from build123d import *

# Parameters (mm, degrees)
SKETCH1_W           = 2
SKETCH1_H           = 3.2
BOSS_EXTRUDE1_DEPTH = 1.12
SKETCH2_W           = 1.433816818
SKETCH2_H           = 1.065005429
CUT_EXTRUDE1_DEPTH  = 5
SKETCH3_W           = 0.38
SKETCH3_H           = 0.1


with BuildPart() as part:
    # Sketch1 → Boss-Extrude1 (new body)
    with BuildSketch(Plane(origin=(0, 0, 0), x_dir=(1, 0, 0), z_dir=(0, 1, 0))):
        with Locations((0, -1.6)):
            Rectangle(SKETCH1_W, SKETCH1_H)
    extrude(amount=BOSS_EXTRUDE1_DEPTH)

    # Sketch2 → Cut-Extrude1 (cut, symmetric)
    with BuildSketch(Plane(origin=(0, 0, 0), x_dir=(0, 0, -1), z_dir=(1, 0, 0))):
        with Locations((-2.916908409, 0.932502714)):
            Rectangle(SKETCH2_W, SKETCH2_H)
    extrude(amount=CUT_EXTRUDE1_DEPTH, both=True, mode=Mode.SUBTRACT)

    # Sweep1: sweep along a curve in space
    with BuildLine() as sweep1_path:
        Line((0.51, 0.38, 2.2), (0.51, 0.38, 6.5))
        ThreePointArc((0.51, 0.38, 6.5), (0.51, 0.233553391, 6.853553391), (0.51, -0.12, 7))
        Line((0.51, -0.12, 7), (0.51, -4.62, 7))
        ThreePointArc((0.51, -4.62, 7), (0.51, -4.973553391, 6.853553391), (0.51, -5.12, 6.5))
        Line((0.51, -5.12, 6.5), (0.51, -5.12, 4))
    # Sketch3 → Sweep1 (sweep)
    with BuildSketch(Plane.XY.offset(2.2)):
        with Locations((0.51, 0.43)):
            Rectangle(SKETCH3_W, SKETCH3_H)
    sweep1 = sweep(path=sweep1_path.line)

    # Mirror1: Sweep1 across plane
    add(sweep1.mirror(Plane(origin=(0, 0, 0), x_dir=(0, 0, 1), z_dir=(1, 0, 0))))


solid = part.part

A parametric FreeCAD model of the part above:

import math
import FreeCAD as App
import Part
import Sketcher
Q = App.Units.Quantity

doc = App.newDocument("Part")
body = doc.addObject("PartDesign::Body", "Body")

# Sketch on XZ plane
sketch1 = body.newObject("Sketcher::SketchObject", "Sketch")
sketch1.AttachmentSupport = (doc.getObject("XZ_Plane"), [""])
sketch1.MapMode = "FlatFace"
sketch1.addGeometry(Part.LineSegment(App.Vector(-1, 0, 0), App.Vector(-1, 3.2, 0)), False)
sketch1.addGeometry(Part.LineSegment(App.Vector(-1, 3.2, 0), App.Vector(1, 3.2, 0)), False)
sketch1.addGeometry(Part.LineSegment(App.Vector(1, 3.2, 0), App.Vector(1, 0, 0)), False)
sketch1.addGeometry(Part.LineSegment(App.Vector(1, 0, 0), App.Vector(-1, 0, 0)), False)
sketch1.addConstraint(Sketcher.Constraint("Coincident", 0, 2, 1, 1))
sketch1.addConstraint(Sketcher.Constraint("Coincident", 1, 2, 2, 1))
sketch1.addConstraint(Sketcher.Constraint("Coincident", 2, 2, 3, 1))
sketch1.addConstraint(Sketcher.Constraint("Coincident", 3, 2, 0, 1))
sketch1.addConstraint(Sketcher.Constraint("Vertical", 0))
sketch1.addConstraint(Sketcher.Constraint("Horizontal", 1))
sketch1.addConstraint(Sketcher.Constraint("Vertical", 2))
sketch1.addConstraint(Sketcher.Constraint("Horizontal", 3))
sketch1.addConstraint(Sketcher.Constraint("Symmetric", 2, 2, 3, 2, -1, 1))
sketch1.addConstraint(Sketcher.Constraint("DistanceX", 1, 1, 1, 2, Q("2 mm")))
sketch1.addConstraint(Sketcher.Constraint("DistanceY", 0, 1, 0, 2, Q("3.2 mm")))
pad1 = body.newObject("PartDesign::Pad", "Pad")
pad1.Profile = sketch1
pad1.Length = 1.12
pad1.Reversed = True

# Sketch on YZ plane
sketch2 = body.newObject("Sketcher::SketchObject", "Sketch001")
sketch2.AttachmentSupport = (doc.getObject("YZ_Plane"), [""])
sketch2.MapMode = "FlatFace"
sketch2.addGeometry(Part.LineSegment(App.Vector(1.5, 3.6, 0), App.Vector(0.4, 3.6, 0)), False)
sketch2.addGeometry(Part.LineSegment(App.Vector(0.4, 3.6, 0), App.Vector(0.4, 2.2, 0)), False)
sketch2.addGeometry(Part.LineSegment(App.Vector(0.4, 2.2, 0), App.Vector(1.5, 2.2, 0)), False)
sketch2.addGeometry(Part.LineSegment(App.Vector(1.5, 2.2, 0), App.Vector(1.5, 3.6, 0)), False)
sketch2.addConstraint(Sketcher.Constraint("Coincident", 0, 2, 1, 1))
sketch2.addConstraint(Sketcher.Constraint("Coincident", 1, 2, 2, 1))
sketch2.addConstraint(Sketcher.Constraint("Coincident", 2, 2, 3, 1))
sketch2.addConstraint(Sketcher.Constraint("Coincident", 3, 2, 0, 1))
sketch2.addConstraint(Sketcher.Constraint("Horizontal", 0))
sketch2.addConstraint(Sketcher.Constraint("Vertical", 1))
sketch2.addConstraint(Sketcher.Constraint("Horizontal", 2))
sketch2.addConstraint(Sketcher.Constraint("Vertical", 3))
sketch2.addConstraint(Sketcher.Constraint("DistanceX", -1, 1, 0, 2, Q("0.4 mm")))
sketch2.addConstraint(Sketcher.Constraint("DistanceY", -1, 1, 1, 2, Q("2.2 mm")))
sketch2.addConstraint(Sketcher.Constraint("DistanceX", 0, 2, 0, 1, Q("1.065005 mm")))
sketch2.addConstraint(Sketcher.Constraint("DistanceY", 1, 2, 1, 1, Q("1.433817 mm")))
pocket1 = body.newObject("PartDesign::Pocket", "Pocket")
pocket1.Profile = sketch2
pocket1.Length = 10
pocket1.Midplane = True

# Sketch on XY plane
sketch3 = body.newObject("Sketcher::SketchObject", "Sketch002")
sketch3.AttachmentSupport = (doc.getObject("XY_Plane"), [""])
sketch3.MapMode = "FlatFace"
sketch3.AttachmentOffset = App.Placement(App.Vector(0, 0, 2.2), App.Rotation())
sketch3.addGeometry(Part.LineSegment(App.Vector(0.32, 0.48, 0), App.Vector(0.32, 0.38, 0)), False)
sketch3.addGeometry(Part.LineSegment(App.Vector(0.32, 0.38, 0), App.Vector(0.7, 0.38, 0)), False)
sketch3.addGeometry(Part.LineSegment(App.Vector(0.7, 0.38, 0), App.Vector(0.7, 0.48, 0)), False)
sketch3.addGeometry(Part.LineSegment(App.Vector(0.7, 0.48, 0), App.Vector(0.32, 0.48, 0)), False)
sketch3.addConstraint(Sketcher.Constraint("Coincident", 0, 2, 1, 1))
sketch3.addConstraint(Sketcher.Constraint("Coincident", 1, 2, 2, 1))
sketch3.addConstraint(Sketcher.Constraint("Coincident", 2, 2, 3, 1))
sketch3.addConstraint(Sketcher.Constraint("Coincident", 3, 2, 0, 1))
sketch3.addConstraint(Sketcher.Constraint("Vertical", 0))
sketch3.addConstraint(Sketcher.Constraint("Horizontal", 1))
sketch3.addConstraint(Sketcher.Constraint("Vertical", 2))
sketch3.addConstraint(Sketcher.Constraint("Horizontal", 3))
sketch3.addConstraint(Sketcher.Constraint("DistanceY", 0, 2, 0, 1, Q("0.1 mm")))
sketch3.addConstraint(Sketcher.Constraint("DistanceX", 1, 1, 1, 2, Q("0.38 mm")))
sketch3.addConstraint(Sketcher.Constraint("DistanceX", -1, 1, 1, 2, Q("0.7 mm")))
sketch3.addConstraint(Sketcher.Constraint("DistanceY", -1, 1, 0, 2, Q("0.38 mm")))

# Sketch on YZ plane
sketch4 = body.newObject("Sketcher::SketchObject", "Sketch003")
sketch4.AttachmentSupport = (doc.getObject("YZ_Plane"), [""])
sketch4.MapMode = "FlatFace"
sketch4.AttachmentOffset = App.Placement(App.Vector(0, 0, 0.51), App.Rotation())
sketch4.addGeometry(Part.LineSegment(App.Vector(0.38, 2.2, 0), App.Vector(0.38, 6.5, 0)), False)
sketch4.addGeometry(Part.ArcOfCircle(Part.Circle(App.Vector(-0.12, 6.5, 0), App.Vector(0, 0, 1), 0.5), math.radians(0), math.radians(90)), False)
sketch4.addGeometry(Part.LineSegment(App.Vector(-0.12, 7, 0), App.Vector(-4.62, 7, 0)), False)
sketch4.addGeometry(Part.ArcOfCircle(Part.Circle(App.Vector(-4.62, 6.5, 0), App.Vector(0, 0, 1), 0.5), math.radians(90), math.radians(180)), False)
sketch4.addGeometry(Part.LineSegment(App.Vector(-5.12, 6.5, 0), App.Vector(-5.12, 4, 0)), False)
sketch4.addConstraint(Sketcher.Constraint("Tangent", 0, 2, 1, 1))
sketch4.addConstraint(Sketcher.Constraint("Tangent", 1, 2, 2, 1))
sketch4.addConstraint(Sketcher.Constraint("Tangent", 2, 2, 3, 1))
sketch4.addConstraint(Sketcher.Constraint("Tangent", 3, 2, 4, 1))
sketch4.addConstraint(Sketcher.Constraint("Vertical", 0))
sketch4.addConstraint(Sketcher.Constraint("Horizontal", 2))
sketch4.addConstraint(Sketcher.Constraint("Vertical", 4))
sketch4.addConstraint(Sketcher.Constraint("Equal", 1, 3))
sketch4.addConstraint(Sketcher.Constraint("Radius", 1, Q("0.5 mm")))
sketch4.addConstraint(Sketcher.Constraint("DistanceX", 2, 2, 2, 1, Q("4.5 mm")))
sketch4.addConstraint(Sketcher.Constraint("DistanceY", 0, 1, 0, 2, Q("4.3 mm")))
sketch4.addConstraint(Sketcher.Constraint("DistanceY", 4, 2, 4, 1, Q("2.5 mm")))
sketch4.addConstraint(Sketcher.Constraint("DistanceY", -1, 1, 1, 2, Q("7 mm")))
sketch4.addConstraint(Sketcher.Constraint("DistanceX", 1, 3, -1, 1, Q("0.12 mm")))
doc.recompute()

additivepipe = body.newObject("PartDesign::AdditivePipe", "AdditivePipe")
additivepipe.Profile = sketch3
additivepipe.Spine = (sketch4, ["Edge1", "Edge2", "Edge3", "Edge4", "Edge5"])
doc.recompute()

mirrored = body.newObject("PartDesign::Mirrored", "Mirrored")
mirrored.Originals = [additivepipe]
mirrored.MirrorPlane = (doc.getObject("YZ_Plane"), [""])
body.Tip = mirrored

doc.recompute()
